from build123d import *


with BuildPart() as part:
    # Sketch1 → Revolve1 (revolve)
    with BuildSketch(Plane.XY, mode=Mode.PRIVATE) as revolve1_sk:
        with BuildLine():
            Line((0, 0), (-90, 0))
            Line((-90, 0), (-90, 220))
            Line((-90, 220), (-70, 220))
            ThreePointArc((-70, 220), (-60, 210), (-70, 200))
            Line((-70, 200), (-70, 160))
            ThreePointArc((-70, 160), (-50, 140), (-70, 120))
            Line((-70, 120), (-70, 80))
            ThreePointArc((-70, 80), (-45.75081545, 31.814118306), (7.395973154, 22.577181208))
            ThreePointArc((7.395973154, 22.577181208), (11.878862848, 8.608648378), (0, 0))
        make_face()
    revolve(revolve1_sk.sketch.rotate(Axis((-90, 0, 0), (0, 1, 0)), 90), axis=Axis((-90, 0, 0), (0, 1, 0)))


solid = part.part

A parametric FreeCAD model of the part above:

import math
import FreeCAD as App
import Part
import Sketcher
from FreeCAD import Vector

doc = App.newDocument("Part")
params = doc.addObject("Spreadsheet::Sheet", "Params")
for row, (alias, value) in enumerate([
    ("sketch1_radius", "60 mm"),
    ("sketch1_radius2", "20 mm"),
    ("sketch1_radius3", "10 mm"),
    ("sketch1_radius4", "12.5 mm"),
    ("sketch1_width", "90 mm"),
    ("revolution_angle", "360 deg"),
], start=1):
    params.set(f"A{row}", alias)
    params.set(f"B{row}", "=" + value)
    params.setAlias(f"B{row}", alias)

body = doc.addObject("PartDesign::Body", "Body")

sketch1 = body.newObject("Sketcher::SketchObject", "Sketch")
sketch1.AttachmentSupport = (doc.getObject("XY_Plane"), [""])
sketch1.MapMode = "FlatFace"
sketch1.addGeometry([
    Part.LineSegment(Vector(-90, 0, 0), Vector(0, 0, 0)),
    Part.ArcOfCircle(Part.Circle(Vector(0, 12.5, 0), Vector(0, 0, 1), 12.5), math.radians(-90), math.radians(53.723836)),
    Part.ArcOfCircle(Part.Circle(Vector(-10, 80, 0), Vector(0, 0, 1), 60), math.radians(180), math.radians(286.853938)),
    Part.LineSegment(Vector(-70, 80, 0), Vector(-70, 120, 0)),
    Part.ArcOfCircle(Part.Circle(Vector(-70, 140, 0), Vector(0, 0, 1), 20), math.radians(-90), math.radians(90)),
    Part.LineSegment(Vector(-70, 160, 0), Vector(-70, 200, 0)),
    Part.ArcOfCircle(Part.Circle(Vector(-70, 210, 0), Vector(0, 0, 1), 10), math.radians(-90), math.radians(90)),
    Part.LineSegment(Vector(-70, 220, 0), Vector(-90, 220, 0)),
    Part.LineSegment(Vector(-90, 220, 0), Vector(-90, 0, 0)),
], False)
sketch1.addGeometry(Part.LineSegment(Vector(-90, 0, 0), Vector(-90, 220, 0)), True)
sketch1.addConstraint([
    Sketcher.Constraint("Tangent", 0, 2, 1, 1),
    Sketcher.Constraint("Coincident", 1, 2, 2, 2),
    Sketcher.Constraint("Tangent", 2, 1, 3, 1),
    Sketcher.Constraint("Coincident", 3, 2, 4, 1),
    Sketcher.Constraint("Coincident", 4, 2, 5, 1),
    Sketcher.Constraint("Coincident", 5, 2, 6, 1),
    Sketcher.Constraint("Tangent", 6, 2, 7, 1),
    Sketcher.Constraint("Coincident", 7, 2, 8, 1),
    Sketcher.Constraint("Coincident", 8, 2, 0, 1),
    Sketcher.Constraint("Horizontal", 0),
    Sketcher.Constraint("Vertical", 3),
    Sketcher.Constraint("Vertical", 5),
    Sketcher.Constraint("Horizontal", 7),
    Sketcher.Constraint("Vertical", 8),
    Sketcher.Constraint("Vertical", 9),
    Sketcher.Constraint("Coincident", 0, 2, -1, 1),
    Sketcher.Constraint("Coincident", 9, 1, 8, 2),
    Sketcher.Constraint("Horizontal", 6, 2, 9, 2),
    Sketcher.Constraint("Vertical", 4, 3, 6, 3),
    Sketcher.Constraint("Vertical", 6, 3, 2, 1),
    Sketcher.Constraint("Vertical", 3, 2, 4, 2),
    Sketcher.Constraint("Equal", 3, 5),
    Sketcher.Constraint("Radius", 2, 60.0),
    Sketcher.Constraint("Radius", 4, 20.0),
    Sketcher.Constraint("Radius", 6, 10.0),
    Sketcher.Constraint("Radius", 1, 12.5),
    Sketcher.Constraint("DistanceX", 0, 1, 0, 2, 90.0),
    Sketcher.Constraint("DistanceX", 7, 2, 7, 1, 20.0),
    Sketcher.Constraint("DistanceY", 3, 1, 3, 2, 40.0),
    Sketcher.Constraint("DistanceY", 8, 2, 8, 1, 220.0),
])
sketch1.setExpression("Constraints[22]", "Params.sketch1_radius")
sketch1.setExpression("Constraints[23]", "Params.sketch1_radius2")
sketch1.setExpression("Constraints[24]", "Params.sketch1_radius3")
sketch1.setExpression("Constraints[25]", "Params.sketch1_radius4")
sketch1.setExpression("Constraints[26]", "Params.sketch1_width")
revolution = body.newObject("PartDesign::Revolution", "Revolution")
revolution.Profile = sketch1
revolution.ReferenceAxis = (sketch1, ["Axis0"])
revolution.setExpression("Angle", "Params.revolution_angle")

doc.recompute()
